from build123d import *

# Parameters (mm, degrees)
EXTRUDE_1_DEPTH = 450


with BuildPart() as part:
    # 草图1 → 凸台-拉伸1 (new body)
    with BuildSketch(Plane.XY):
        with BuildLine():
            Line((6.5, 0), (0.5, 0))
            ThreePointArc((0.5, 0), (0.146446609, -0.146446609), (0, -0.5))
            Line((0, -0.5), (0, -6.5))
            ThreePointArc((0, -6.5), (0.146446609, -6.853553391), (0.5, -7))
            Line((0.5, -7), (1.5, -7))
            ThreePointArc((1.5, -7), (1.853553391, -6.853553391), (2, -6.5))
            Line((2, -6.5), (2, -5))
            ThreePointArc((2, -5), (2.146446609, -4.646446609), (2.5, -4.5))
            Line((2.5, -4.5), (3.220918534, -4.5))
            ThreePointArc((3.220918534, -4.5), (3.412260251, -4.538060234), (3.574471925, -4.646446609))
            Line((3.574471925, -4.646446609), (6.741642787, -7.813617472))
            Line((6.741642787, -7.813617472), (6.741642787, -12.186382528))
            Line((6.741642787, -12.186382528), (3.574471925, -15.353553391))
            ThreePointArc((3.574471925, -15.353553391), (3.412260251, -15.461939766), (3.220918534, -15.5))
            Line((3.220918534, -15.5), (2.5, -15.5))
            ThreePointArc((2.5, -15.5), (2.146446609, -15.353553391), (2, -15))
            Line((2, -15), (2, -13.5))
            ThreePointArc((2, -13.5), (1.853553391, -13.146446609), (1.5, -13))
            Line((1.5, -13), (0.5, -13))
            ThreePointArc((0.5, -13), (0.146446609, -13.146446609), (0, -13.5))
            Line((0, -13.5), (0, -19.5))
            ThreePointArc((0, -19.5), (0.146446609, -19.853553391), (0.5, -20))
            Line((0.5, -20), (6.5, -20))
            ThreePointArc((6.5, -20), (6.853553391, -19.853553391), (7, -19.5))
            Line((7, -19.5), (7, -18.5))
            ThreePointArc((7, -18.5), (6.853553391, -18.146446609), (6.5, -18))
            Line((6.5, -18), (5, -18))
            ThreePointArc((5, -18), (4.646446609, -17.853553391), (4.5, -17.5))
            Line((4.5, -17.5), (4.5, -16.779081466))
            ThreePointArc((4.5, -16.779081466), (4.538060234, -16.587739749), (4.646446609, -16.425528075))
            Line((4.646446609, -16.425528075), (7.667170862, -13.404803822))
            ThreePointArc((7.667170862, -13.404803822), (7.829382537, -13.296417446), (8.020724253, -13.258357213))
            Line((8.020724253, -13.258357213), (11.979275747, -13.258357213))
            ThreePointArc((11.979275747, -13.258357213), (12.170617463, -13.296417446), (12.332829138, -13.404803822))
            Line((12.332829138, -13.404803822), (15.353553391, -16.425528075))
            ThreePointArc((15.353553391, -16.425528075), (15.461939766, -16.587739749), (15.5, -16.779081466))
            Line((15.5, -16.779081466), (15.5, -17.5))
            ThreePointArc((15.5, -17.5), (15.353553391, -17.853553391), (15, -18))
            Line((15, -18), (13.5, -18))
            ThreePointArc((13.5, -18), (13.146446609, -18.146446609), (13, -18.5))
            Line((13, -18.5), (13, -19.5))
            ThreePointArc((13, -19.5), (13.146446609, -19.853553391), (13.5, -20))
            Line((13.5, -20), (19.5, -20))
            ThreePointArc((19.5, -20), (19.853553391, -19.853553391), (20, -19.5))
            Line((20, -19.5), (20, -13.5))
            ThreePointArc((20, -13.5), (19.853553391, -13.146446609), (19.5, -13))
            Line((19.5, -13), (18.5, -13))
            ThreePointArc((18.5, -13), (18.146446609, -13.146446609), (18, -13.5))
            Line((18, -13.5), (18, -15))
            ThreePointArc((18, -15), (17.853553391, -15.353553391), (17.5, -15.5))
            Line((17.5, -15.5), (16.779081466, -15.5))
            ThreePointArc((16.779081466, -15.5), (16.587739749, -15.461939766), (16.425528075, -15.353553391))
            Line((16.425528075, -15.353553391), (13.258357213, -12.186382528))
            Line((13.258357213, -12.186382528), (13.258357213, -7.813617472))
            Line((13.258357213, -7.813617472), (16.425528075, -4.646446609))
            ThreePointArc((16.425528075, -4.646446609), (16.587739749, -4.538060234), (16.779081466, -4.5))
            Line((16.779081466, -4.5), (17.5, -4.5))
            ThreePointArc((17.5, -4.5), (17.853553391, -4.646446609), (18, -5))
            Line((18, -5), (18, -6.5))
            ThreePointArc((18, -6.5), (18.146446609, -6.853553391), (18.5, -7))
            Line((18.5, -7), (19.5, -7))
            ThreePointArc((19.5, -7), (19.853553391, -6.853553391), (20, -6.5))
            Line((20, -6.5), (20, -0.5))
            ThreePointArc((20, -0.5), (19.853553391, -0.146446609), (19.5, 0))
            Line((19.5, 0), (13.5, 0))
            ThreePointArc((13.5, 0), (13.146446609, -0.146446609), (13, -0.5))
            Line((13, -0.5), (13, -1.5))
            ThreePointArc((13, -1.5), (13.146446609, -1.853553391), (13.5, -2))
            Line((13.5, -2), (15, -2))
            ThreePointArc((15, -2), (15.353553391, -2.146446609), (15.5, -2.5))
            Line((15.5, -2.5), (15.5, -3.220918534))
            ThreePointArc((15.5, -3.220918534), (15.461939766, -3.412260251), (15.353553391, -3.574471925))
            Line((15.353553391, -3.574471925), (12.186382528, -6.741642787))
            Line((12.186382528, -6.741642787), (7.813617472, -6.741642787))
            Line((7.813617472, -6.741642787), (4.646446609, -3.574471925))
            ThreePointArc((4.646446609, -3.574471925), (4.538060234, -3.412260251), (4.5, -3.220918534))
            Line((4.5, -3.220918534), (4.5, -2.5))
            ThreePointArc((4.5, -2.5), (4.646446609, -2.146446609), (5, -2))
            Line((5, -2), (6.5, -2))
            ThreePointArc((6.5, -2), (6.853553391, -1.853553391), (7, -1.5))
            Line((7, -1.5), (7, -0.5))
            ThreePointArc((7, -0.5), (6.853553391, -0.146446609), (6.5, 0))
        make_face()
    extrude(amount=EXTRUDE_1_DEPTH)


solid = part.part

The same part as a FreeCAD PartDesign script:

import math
import FreeCAD as App
import Part
import Sketcher

V = App.Vector
Q = App.Units.Quantity

doc = App.newDocument("Part")
body = doc.addObject("PartDesign::Body", "Body")

# Sketch on XY plane
sketch1 = body.newObject("Sketcher::SketchObject", "Sketch")
sketch1.AttachmentSupport = (doc.getObject("XY_Plane"), [""])
sketch1.MapMode = "FlatFace"
sketch1.addGeometry([
    Part.LineSegment(V(6.5, 0, 0), V(0.5, 0, 0)),  # 0
    Part.ArcOfCircle(Part.Circle(V(0.5, -0.5, 0), V(0, 0, 1), 0.5), math.radians(90), math.radians(180)),  # 1
    Part.LineSegment(V(0, -0.5, 0), V(0, -6.5, 0)),  # 2
    Part.ArcOfCircle(Part.Circle(V(0.5, -6.5, 0), V(0, 0, 1), 0.5), math.radians(180), math.radians(270)),  # 3
    Part.LineSegment(V(0.5, -7, 0), V(1.5, -7, 0)),  # 4
    Part.ArcOfCircle(Part.Circle(V(1.5, -6.5, 0), V(0, 0, 1), 0.5), math.radians(-90), math.radians(0)),  # 5
    Part.LineSegment(V(2, -6.5, 0), V(2, -5, 0)),  # 6
    Part.ArcOfCircle(Part.Circle(V(2.5, -5, 0), V(0, 0, 1), 0.5), math.radians(90), math.radians(180)),  # 7
    Part.LineSegment(V(2.5, -4.5, 0), V(3.22, -4.5, 0)),  # 8
    Part.ArcOfCircle(Part.Circle(V(3.22, -5, 0), V(0, 0, 1), 0.5), math.radians(45), math.radians(90)),  # 9
    Part.LineSegment(V(3.57, -4.65, 0), V(6.74, -7.81, 0)),  # 10
    Part.LineSegment(V(6.74, -7.81, 0), V(6.74, -12.19, 0)),  # 11
    Part.LineSegment(V(6.74, -12.19, 0), V(3.57, -15.35, 0)),  # 12
    Part.ArcOfCircle(Part.Circle(V(3.22, -15, 0), V(0, 0, 1), 0.5), math.radians(-90), math.radians(-45)),  # 13
    Part.LineSegment(V(3.22, -15.5, 0), V(2.5, -15.5, 0)),  # 14
    Part.ArcOfCircle(Part.Circle(V(2.5, -15, 0), V(0, 0, 1), 0.5), math.radians(180), math.radians(270)),  # 15
    Part.LineSegment(V(2, -15, 0), V(2, -13.5, 0)),  # 16
    Part.ArcOfCircle(Part.Circle(V(1.5, -13.5, 0), V(0, 0, 1), 0.5), math.radians(0), math.radians(90)),  # 17
    Part.LineSegment(V(1.5, -13, 0), V(0.5, -13, 0)),  # 18
    Part.ArcOfCircle(Part.Circle(V(0.5, -13.5, 0), V(0, 0, 1), 0.5), math.radians(90), math.radians(180)),  # 19
    Part.LineSegment(V(0, -13.5, 0), V(0, -19.5, 0)),  # 20
    Part.ArcOfCircle(Part.Circle(V(0.5, -19.5, 0), V(0, 0, 1), 0.5), math.radians(180), math.radians(270)),  # 21
    Part.LineSegment(V(0.5, -20, 0), V(6.5, -20, 0)),  # 22
    Part.ArcOfCircle(Part.Circle(V(6.5, -19.5, 0), V(0, 0, 1), 0.5), math.radians(-90), math.radians(0)),  # 23
    Part.LineSegment(V(7, -19.5, 0), V(7, -18.5, 0)),  # 24
    Part.ArcOfCircle(Part.Circle(V(6.5, -18.5, 0), V(0, 0, 1), 0.5), math.radians(0), math.radians(90)),  # 25
    Part.LineSegment(V(6.5, -18, 0), V(5, -18, 0)),  # 26
    Part.ArcOfCircle(Part.Circle(V(5, -17.5, 0), V(0, 0, 1), 0.5), math.radians(180), math.radians(270)),  # 27
    Part.LineSegment(V(4.5, -17.5, 0), V(4.5, -16.78, 0)),  # 28
    Part.ArcOfCircle(Part.Circle(V(5, -16.78, 0), V(0, 0, 1), 0.5), math.radians(135), math.radians(180)),  # 29
    Part.LineSegment(V(4.65, -16.43, 0), V(7.67, -13.4, 0)),  # 30
    Part.ArcOfCircle(Part.Circle(V(8.02, -13.76, 0), V(0, 0, 1), 0.5), math.radians(90), math.radians(135)),  # 31
    Part.LineSegment(V(8.02, -13.26, 0), V(11.98, -13.26, 0)),  # 32
    Part.ArcOfCircle(Part.Circle(V(11.98, -13.76, 0), V(0, 0, 1), 0.5), math.radians(45), math.radians(90)),  # 33
    Part.LineSegment(V(12.33, -13.4, 0), V(15.35, -16.43, 0)),  # 34
    Part.ArcOfCircle(Part.Circle(V(15, -16.78, 0), V(0, 0, 1), 0.5), math.radians(0), math.radians(45)),  # 35
    Part.LineSegment(V(15.5, -16.78, 0), V(15.5, -17.5, 0)),  # 36
    Part.ArcOfCircle(Part.Circle(V(15, -17.5, 0), V(0, 0, 1), 0.5), math.radians(-90), math.radians(0)),  # 37
    Part.LineSegment(V(15, -18, 0), V(13.5, -18, 0)),  # 38
    Part.ArcOfCircle(Part.Circle(V(13.5, -18.5, 0), V(0, 0, 1), 0.5), math.radians(90), math.radians(180)),  # 39
    Part.LineSegment(V(13, -18.5, 0), V(13, -19.5, 0)),  # 40
    Part.ArcOfCircle(Part.Circle(V(13.5, -19.5, 0), V(0, 0, 1), 0.5), math.radians(180), math.radians(270)),  # 41
    Part.LineSegment(V(13.5, -20, 0), V(19.5, -20, 0)),  # 42
    Part.ArcOfCircle(Part.Circle(V(19.5, -19.5, 0), V(0, 0, 1), 0.5), math.radians(-90), math.radians(0)),  # 43
    Part.LineSegment(V(20, -19.5, 0), V(20, -13.5, 0)),  # 44
    Part.ArcOfCircle(Part.Circle(V(19.5, -13.5, 0), V(0, 0, 1), 0.5), math.radians(0), math.radians(90)),  # 45
    Part.LineSegment(V(19.5, -13, 0), V(18.5, -13, 0)),  # 46
    Part.ArcOfCircle(Part.Circle(V(18.5, -13.5, 0), V(0, 0, 1), 0.5), math.radians(90), math.radians(180)),  # 47
    Part.LineSegment(V(18, -13.5, 0), V(18, -15, 0)),  # 48
    Part.ArcOfCircle(Part.Circle(V(17.5, -15, 0), V(0, 0, 1), 0.5), math.radians(-90), math.radians(0)),  # 49
    Part.LineSegment(V(17.5, -15.5, 0), V(16.78, -15.5, 0)),  # 50
    Part.ArcOfCircle(Part.Circle(V(16.78, -15, 0), V(0, 0, 1), 0.5), math.radians(-135), math.radians(-90)),  # 51
    Part.LineSegment(V(16.43, -15.35, 0), V(13.26, -12.19, 0)),  # 52
    Part.LineSegment(V(13.26, -12.19, 0), V(13.26, -7.81, 0)),  # 53
    Part.LineSegment(V(13.26, -7.81, 0), V(16.43, -4.65, 0)),  # 54
    Part.ArcOfCircle(Part.Circle(V(16.78, -5, 0), V(0, 0, 1), 0.5), math.radians(90), math.radians(135)),  # 55
    Part.LineSegment(V(16.78, -4.5, 0), V(17.5, -4.5, 0)),  # 56
    Part.ArcOfCircle(Part.Circle(V(17.5, -5, 0), V(0, 0, 1), 0.5), math.radians(0), math.radians(90)),  # 57
    Part.LineSegment(V(18, -5, 0), V(18, -6.5, 0)),  # 58
    Part.ArcOfCircle(Part.Circle(V(18.5, -6.5, 0), V(0, 0, 1), 0.5), math.radians(180), math.radians(270)),  # 59
    Part.LineSegment(V(18.5, -7, 0), V(19.5, -7, 0)),  # 60
    Part.ArcOfCircle(Part.Circle(V(19.5, -6.5, 0), V(0, 0, 1), 0.5), math.radians(-90), math.radians(0)),  # 61
    Part.LineSegment(V(20, -6.5, 0), V(20, -0.5, 0)),  # 62
    Part.ArcOfCircle(Part.Circle(V(19.5, -0.5, 0), V(0, 0, 1), 0.5), math.radians(0), math.radians(90)),  # 63
    Part.LineSegment(V(19.5, 0, 0), V(13.5, 0, 0)),  # 64
    Part.ArcOfCircle(Part.Circle(V(13.5, -0.5, 0), V(0, 0, 1), 0.5), math.radians(90), math.radians(180)),  # 65
    Part.LineSegment(V(13, -0.5, 0), V(13, -1.5, 0)),  # 66
    Part.ArcOfCircle(Part.Circle(V(13.5, -1.5, 0), V(0, 0, 1), 0.5), math.radians(180), math.radians(270)),  # 67
    Part.LineSegment(V(13.5, -2, 0), V(15, -2, 0)),  # 68
    Part.ArcOfCircle(Part.Circle(V(15, -2.5, 0), V(0, 0, 1), 0.5), math.radians(0), math.radians(90)),  # 69
    Part.LineSegment(V(15.5, -2.5, 0), V(15.5, -3.22, 0)),  # 70
    Part.ArcOfCircle(Part.Circle(V(15, -3.22, 0), V(0, 0, 1), 0.5), math.radians(-45), math.radians(0)),  # 71
    Part.LineSegment(V(15.35, -3.57, 0), V(12.19, -6.74, 0)),  # 72
    Part.LineSegment(V(12.19, -6.74, 0), V(7.81, -6.74, 0)),  # 73
    Part.LineSegment(V(7.81, -6.74, 0), V(4.65, -3.57, 0)),  # 74
    Part.ArcOfCircle(Part.Circle(V(5, -3.22, 0), V(0, 0, 1), 0.5), math.radians(180), math.radians(225)),  # 75
    Part.LineSegment(V(4.5, -3.22, 0), V(4.5, -2.5, 0)),  # 76
    Part.ArcOfCircle(Part.Circle(V(5, -2.5, 0), V(0, 0, 1), 0.5), math.radians(90), math.radians(180)),  # 77
    Part.LineSegment(V(5, -2, 0), V(6.5, -2, 0)),  # 78
    Part.ArcOfCircle(Part.Circle(V(6.5, -1.5, 0), V(0, 0, 1), 0.5), math.radians(-90), math.radians(0)),  # 79
    Part.LineSegment(V(7, -1.5, 0), V(7, -0.5, 0)),  # 80
    Part.ArcOfCircle(Part.Circle(V(6.5, -0.5, 0), V(0, 0, 1), 0.5), math.radians(0), math.radians(90)),  # 81
], False)
sketch1.addConstraint([
    Sketcher.Constraint("Tangent", 0, 2, 1, 1),
    Sketcher.Constraint("Tangent", 1, 2, 2, 1),
    Sketcher.Constraint("Tangent", 2, 2, 3, 1),
    Sketcher.Constraint("Tangent", 3, 2, 4, 1),
    Sketcher.Constraint("Tangent", 4, 2, 5, 1),
    Sketcher.Constraint("Tangent", 5, 2, 6, 1),
    Sketcher.Constraint("Tangent", 6, 2, 7, 2),
    Sketcher.Constraint("Tangent", 7, 1, 8, 1),
    Sketcher.Constraint("Tangent", 8, 2, 9, 2),
    Sketcher.Constraint("Tangent", 9, 1, 10, 1),
    Sketcher.Constraint("Coincident", 10, 2, 11, 1),
    Sketcher.Constraint("Coincident", 11, 2, 12, 1),
    Sketcher.Constraint("Tangent", 12, 2, 13, 2),
    Sketcher.Constraint("Tangent", 13, 1, 14, 1),
    Sketcher.Constraint("Tangent", 14, 2, 15, 2),
    Sketcher.Constraint("Tangent", 15, 1, 16, 1),
    Sketcher.Constraint("Tangent", 16, 2, 17, 1),
    Sketcher.Constraint("Tangent", 17, 2, 18, 1),
    Sketcher.Constraint("Tangent", 18, 2, 19, 1),
    Sketcher.Constraint("Tangent", 19, 2, 20, 1),
    Sketcher.Constraint("Tangent", 20, 2, 21, 1),
    Sketcher.Constraint("Tangent", 21, 2, 22, 1),
    Sketcher.Constraint("Tangent", 22, 2, 23, 1),
    Sketcher.Constraint("Tangent", 23, 2, 24, 1),
    Sketcher.Constraint("Tangent", 24, 2, 25, 1),
    Sketcher.Constraint("Tangent", 25, 2, 26, 1),
    Sketcher.Constraint("Tangent", 26, 2, 27, 2),
    Sketcher.Constraint("Tangent", 27, 1, 28, 1),
    Sketcher.Constraint("Tangent", 28, 2, 29, 2),
    Sketcher.Constraint("Tangent", 29, 1, 30, 1),
    Sketcher.Constraint("Tangent", 30, 2, 31, 2),
    Sketcher.Constraint("Tangent", 31, 1, 32, 1),
    Sketcher.Constraint("Tangent", 32, 2, 33, 2),
    Sketcher.Constraint("Tangent", 33, 1, 34, 1),
    Sketcher.Constraint("Tangent", 34, 2, 35, 2),
    Sketcher.Constraint("Tangent", 35, 1, 36, 1),
    Sketcher.Constraint("Tangent", 36, 2, 37, 2),
    Sketcher.Constraint("Tangent", 37, 1, 38, 1),
    Sketcher.Constraint("Tangent", 38, 2, 39, 1),
    Sketcher.Constraint("Tangent", 39, 2, 40, 1),
    Sketcher.Constraint("Tangent", 40, 2, 41, 1),
    Sketcher.Constraint("Tangent", 41, 2, 42, 1),
    Sketcher.Constraint("Tangent", 42, 2, 43, 1),
    Sketcher.Constraint("Tangent", 43, 2, 44, 1),
    Sketcher.Constraint("Tangent", 44, 2, 45, 1),
    Sketcher.Constraint("Tangent", 45, 2, 46, 1),
    Sketcher.Constraint("Tangent", 46, 2, 47, 1),
    Sketcher.Constraint("Tangent", 47, 2, 48, 1),
    Sketcher.Constraint("Tangent", 48, 2, 49, 2),
    Sketcher.Constraint("Tangent", 49, 1, 50, 1),
    Sketcher.Constraint("Tangent", 50, 2, 51, 2),
    Sketcher.Constraint("Tangent", 51, 1, 52, 1),
    Sketcher.Constraint("Coincident", 52, 2, 53, 1),
    Sketcher.Constraint("Coincident", 53, 2, 54, 1),
    Sketcher.Constraint("Tangent", 54, 2, 55, 2),
    Sketcher.Constraint("Tangent", 55, 1, 56, 1),
    Sketcher.Constraint("Tangent", 56, 2, 57, 2),
    Sketcher.Constraint("Tangent", 57, 1, 58, 1),
    Sketcher.Constraint("Tangent", 58, 2, 59, 1),
    Sketcher.Constraint("Tangent", 59, 2, 60, 1),
    Sketcher.Constraint("Tangent", 60, 2, 61, 1),
    Sketcher.Constraint("Tangent", 61, 2, 62, 1),
    Sketcher.Constraint("Tangent", 62, 2, 63, 1),
    Sketcher.Constraint("Tangent", 63, 2, 64, 1),
    Sketcher.Constraint("Tangent", 64, 2, 65, 1),
    Sketcher.Constraint("Tangent", 65, 2, 66, 1),
    Sketcher.Constraint("Tangent", 66, 2, 67, 1),
    Sketcher.Constraint("Tangent", 67, 2, 68, 1),
    Sketcher.Constraint("Tangent", 68, 2, 69, 2),
    Sketcher.Constraint("Tangent", 69, 1, 70, 1),
    Sketcher.Constraint("Tangent", 70, 2, 71, 2),
    Sketcher.Constraint("Tangent", 71, 1, 72, 1),
    Sketcher.Constraint("Coincident", 72, 2, 73, 1),
    Sketcher.Constraint("Coincident", 73, 2, 74, 1),
    Sketcher.Constraint("Tangent", 74, 2, 75, 2),
    Sketcher.Constraint("Tangent", 75, 1, 76, 1),
    Sketcher.Constraint("Tangent", 76, 2, 77, 2),
    Sketcher.Constraint("Tangent", 77, 1, 78, 1),
    Sketcher.Constraint("Tangent", 78, 2, 79, 1),
    Sketcher.Constraint("Tangent", 79, 2, 80, 1),
    Sketcher.Constraint("Tangent", 80, 2, 81, 1),
    Sketcher.Constraint("Tangent", 81, 2, 0, 1),
    Sketcher.Constraint("Horizontal", 0),
    Sketcher.Constraint("Vertical", 2),
    Sketcher.Constraint("Horizontal", 4),
    Sketcher.Constraint("Vertical", 6),
    Sketcher.Constraint("Horizontal", 8),
    Sketcher.Constraint("Vertical", 11),
    Sketcher.Constraint("Horizontal", 14),
    Sketcher.Constraint("Vertical", 16),
    Sketcher.Constraint("Horizontal", 18),
    Sketcher.Constraint("Vertical", 20),
    Sketcher.Constraint("Horizontal", 22),
    Sketcher.Constraint("Vertical", 24),
    Sketcher.Constraint("Horizontal", 26),
    Sketcher.Constraint("Vertical", 28),
    Sketcher.Constraint("Horizontal", 32),
    Sketcher.Constraint("Vertical", 36),
    Sketcher.Constraint("Horizontal", 38),
    Sketcher.Constraint("Vertical", 40),
    Sketcher.Constraint("Horizontal", 42),
    Sketcher.Constraint("Vertical", 44),
    Sketcher.Constraint("Horizontal", 46),
    Sketcher.Constraint("Vertical", 48),
    Sketcher.Constraint("Horizontal", 50),
    Sketcher.Constraint("Vertical", 53),
    Sketcher.Constraint("Horizontal", 56),
    Sketcher.Constraint("Vertical", 58),
    Sketcher.Constraint("Horizontal", 60),
    Sketcher.Constraint("Vertical", 62),
    Sketcher.Constraint("Horizontal", 64),
    Sketcher.Constraint("Vertical", 66),
    Sketcher.Constraint("Horizontal", 68),
    Sketcher.Constraint("Vertical", 70),
    Sketcher.Constraint("Horizontal", 73),
    Sketcher.Constraint("Vertical", 76),
    Sketcher.Constraint("Horizontal", 78),
    Sketcher.Constraint("Vertical", 80),
    Sketcher.Constraint("Equal", 1, 3),
    Sketcher.Constraint("Equal", 3, 5),
    Sketcher.Constraint("Equal", 5, 7),
    Sketcher.Constraint("Equal", 7, 9),
    Sketcher.Constraint("Equal", 9, 13),
    Sketcher.Constraint("Equal", 13, 15),
    Sketcher.Constraint("Equal", 15, 17),
    Sketcher.Constraint("Equal", 17, 19),
    Sketcher.Constraint("Equal", 19, 21),
    Sketcher.Constraint("Equal", 21, 23),
    Sketcher.Constraint("Equal", 23, 25),
    Sketcher.Constraint("Equal", 25, 27),
    Sketcher.Constraint("Equal", 27, 29),
    Sketcher.Constraint("Equal", 29, 31),
    Sketcher.Constraint("Equal", 31, 33),
    Sketcher.Constraint("Equal", 33, 35),
    Sketcher.Constraint("Equal", 35, 37),
    Sketcher.Constraint("Equal", 37, 39),
    Sketcher.Constraint("Equal", 39, 41),
    Sketcher.Constraint("Equal", 41, 43),
    Sketcher.Constraint("Equal", 43, 45),
    Sketcher.Constraint("Equal", 45, 47),
    Sketcher.Constraint("Equal", 47, 49),
    Sketcher.Constraint("Equal", 49, 51),
    Sketcher.Constraint("Equal", 51, 55),
    Sketcher.Constraint("Equal", 55, 57),
    Sketcher.Constraint("Equal", 57, 59),
    Sketcher.Constraint("Equal", 59, 61),
    Sketcher.Constraint("Equal", 61, 63),
    Sketcher.Constraint("Equal", 63, 65),
    Sketcher.Constraint("Equal", 65, 67),
    Sketcher.Constraint("Equal", 67, 69),
    Sketcher.Constraint("Equal", 69, 71),
    Sketcher.Constraint("Equal", 71, 75),
    Sketcher.Constraint("Equal", 75, 77),
    Sketcher.Constraint("Equal", 77, 79),
    Sketcher.Constraint("Equal", 79, 81),
    Sketcher.Constraint("PointOnObject", 0, 2, -1),
    Sketcher.Constraint("PointOnObject", 1, 2, -2),
    Sketcher.Constraint("PointOnObject", 19, 2, -2),
    Sketcher.Constraint("PointOnObject", 63, 2, -1),
    Sketcher.Constraint("Perpendicular", 10, 12),
    Sketcher.Constraint("Parallel", 12, 30),
    Sketcher.Constraint("Perpendicular", 30, 34),
    Sketcher.Constraint("Parallel", 34, 52),
    Sketcher.Constraint("Perpendicular", 52, 54),
    Sketcher.Constraint("Parallel", 54, 72),
    Sketcher.Constraint("Perpendicular", 72, 74),
    Sketcher.Constraint("Horizontal", 29, 3, 35, 3),
    Sketcher.Constraint("Horizontal", 27, 3, 37, 3),
    Sketcher.Constraint("Horizontal", 23, 3, 41, 3),
    Sketcher.Constraint("Horizontal", 19, 3, 45, 3),
    Sketcher.Constraint("Horizontal", 15, 3, 49, 3),
    Sketcher.Constraint("Horizontal", 9, 3, 55, 3),
    Sketcher.Constraint("Horizontal", 5, 3, 59, 3),
    Sketcher.Constraint("Horizontal", 71, 3, 75, 3),
    Sketcher.Constraint("Horizontal", 69, 3, 77, 3),
    Sketcher.Constraint("Horizontal", 30, 2, 33, 1),
    Sketcher.Constraint("Horizontal", 11, 2, 52, 2),
    Sketcher.Constraint("Horizontal", 10, 2, 53, 2),
    Sketcher.Constraint("Vertical", 9, 3, 13, 3),
    Sketcher.Constraint("Vertical", 7, 3, 15, 3),
    Sketcher.Constraint("Vertical", 49, 3, 57, 3),
    Sketcher.Constraint("Vertical", 45, 3, 61, 3),
    Sketcher.Constraint("Vertical", 41, 3, 65, 3),
    Sketcher.Constraint("Vertical", 37, 3, 69, 3),
    Sketcher.Constraint("Vertical", 29, 3, 75, 3),
    Sketcher.Constraint("Vertical", 25, 3, 79, 3),
    Sketcher.Constraint("Equal", 26, 38),
    Sketcher.Constraint("Equal", 22, 42),
    Sketcher.Constraint("Equal", 18, 46),
    Sketcher.Constraint("Equal", 14, 50),
    Sketcher.Constraint("Equal", 64, 2),
    Sketcher.Constraint("Equal", 78, 6),
    Sketcher.Constraint("Equal", 73, 11),
    Sketcher.Constraint("Equal", 6, 16),
    Sketcher.Constraint("Equal", 2, 20),
    Sketcher.Constraint("Equal", 60, 24),
    Sketcher.Constraint("Equal", 56, 28),
    Sketcher.Constraint("Equal", 40, 66),
    Sketcher.Constraint("Equal", 36, 70),
    Sketcher.Constraint("Equal", 54, 72),
    Sketcher.Constraint("Radius", 1, Q("0.5 mm")),
    Sketcher.Constraint("DistanceX", 0, 2, 0, 1, Q("6 mm")),
    Sketcher.Constraint("DistanceX", 4, 1, 4, 2, Q("1 mm")),
    Sketcher.Constraint("DistanceX", 26, 2, 26, 1, Q("1.5 mm")),
    Sketcher.Constraint("DistanceY", 13, 3, -1, 1, Q("15 mm")),
    Sketcher.Constraint("DistanceX", 8, 1, 8, 2, Q("0.720919 mm")),
    Sketcher.Constraint("DistanceX", 32, 1, 32, 2, Q("3.958551 mm")),
    Sketcher.Constraint("DistanceX", 73, 2, 73, 1, Q("4.372765 mm")),
])
pad1 = body.newObject("PartDesign::Pad", "Pad")
pad1.Profile = sketch1
pad1.Length = 450

doc.recompute()
